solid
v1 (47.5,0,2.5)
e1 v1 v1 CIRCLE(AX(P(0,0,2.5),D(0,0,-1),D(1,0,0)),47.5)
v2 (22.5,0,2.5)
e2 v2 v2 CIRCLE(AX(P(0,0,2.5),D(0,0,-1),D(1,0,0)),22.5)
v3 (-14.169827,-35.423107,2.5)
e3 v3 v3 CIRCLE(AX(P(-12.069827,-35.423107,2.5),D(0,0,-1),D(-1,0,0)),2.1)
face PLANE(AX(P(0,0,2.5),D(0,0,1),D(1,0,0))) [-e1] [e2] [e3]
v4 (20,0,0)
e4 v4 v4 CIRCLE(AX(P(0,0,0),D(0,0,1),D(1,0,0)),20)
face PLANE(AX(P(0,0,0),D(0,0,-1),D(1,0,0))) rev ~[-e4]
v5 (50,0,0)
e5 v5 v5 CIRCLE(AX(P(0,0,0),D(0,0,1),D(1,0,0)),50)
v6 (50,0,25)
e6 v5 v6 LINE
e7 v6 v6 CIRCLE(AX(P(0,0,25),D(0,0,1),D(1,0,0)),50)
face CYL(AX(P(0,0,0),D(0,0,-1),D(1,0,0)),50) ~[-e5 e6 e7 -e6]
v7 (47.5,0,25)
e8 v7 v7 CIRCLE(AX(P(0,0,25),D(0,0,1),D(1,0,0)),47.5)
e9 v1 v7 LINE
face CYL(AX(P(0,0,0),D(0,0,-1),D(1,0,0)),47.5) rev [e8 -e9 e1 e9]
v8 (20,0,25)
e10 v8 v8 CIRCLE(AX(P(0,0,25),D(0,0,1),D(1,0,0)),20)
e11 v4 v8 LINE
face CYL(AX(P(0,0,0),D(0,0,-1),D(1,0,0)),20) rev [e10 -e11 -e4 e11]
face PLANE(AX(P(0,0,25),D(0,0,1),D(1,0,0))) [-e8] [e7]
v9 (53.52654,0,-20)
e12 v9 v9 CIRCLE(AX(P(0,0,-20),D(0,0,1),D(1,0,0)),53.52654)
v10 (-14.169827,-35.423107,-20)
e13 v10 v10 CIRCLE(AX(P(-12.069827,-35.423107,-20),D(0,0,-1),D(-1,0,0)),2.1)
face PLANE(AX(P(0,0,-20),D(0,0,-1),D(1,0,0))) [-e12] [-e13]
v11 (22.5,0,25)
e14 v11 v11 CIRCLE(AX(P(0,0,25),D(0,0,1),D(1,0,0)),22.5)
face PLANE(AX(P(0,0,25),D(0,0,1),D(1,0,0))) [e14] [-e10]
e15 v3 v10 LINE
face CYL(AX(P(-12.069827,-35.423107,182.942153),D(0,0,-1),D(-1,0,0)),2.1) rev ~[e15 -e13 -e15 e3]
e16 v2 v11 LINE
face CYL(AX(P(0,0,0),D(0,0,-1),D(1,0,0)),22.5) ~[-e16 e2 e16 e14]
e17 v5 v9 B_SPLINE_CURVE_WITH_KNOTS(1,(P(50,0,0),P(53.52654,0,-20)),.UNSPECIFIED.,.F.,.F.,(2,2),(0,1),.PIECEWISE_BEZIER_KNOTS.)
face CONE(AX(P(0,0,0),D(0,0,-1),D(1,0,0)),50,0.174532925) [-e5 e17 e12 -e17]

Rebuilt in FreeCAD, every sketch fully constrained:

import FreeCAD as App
import Part
import Sketcher


def faces_at(feature, points):
    """Names of the faces that lie closest to the given points."""
    faces = feature.Shape.Faces
    near = lambda p: min(range(len(faces)), key=lambda i: faces[i].distToShape(Part.Vertex(*p))[0])
    return sorted({f"Face{near(p) + 1}" for p in points})

doc = App.newDocument("Part")
params = doc.addObject("Spreadsheet::Sheet", "Params")
for row, (alias, value) in enumerate([
    ("sketch1_diameter", "100 mm"),
    ("sketch1_diameter2", "40 mm"),
    ("pad1_length", "25 mm"),
    ("thickness_wall", "2.5 mm"),
    ("sketch2_diameter", "100 mm"),
    ("pad2_length", "20 mm"),
    ("pad2_taper", "10 deg"),
    ("sketch3_diameter", "4.2 mm"),
    ("hole_diameter", "4.2 mm"),
], start=1):
    params.set(f"A{row}", alias)
    params.set(f"B{row}", "=" + value)
    params.setAlias(f"B{row}", alias)

body = doc.addObject("PartDesign::Body", "Body")

# Sketch on XY plane
sketch1 = body.newObject("Sketcher::SketchObject", "Sketch")
sketch1.AttachmentSupport = (doc.getObject("XY_Plane"), [""])
sketch1.MapMode = "FlatFace"
sketch1.addGeometry([
    Part.Circle(App.Vector(0, 0, 0), App.Vector(0, 0, 1), 50),
    Part.Circle(App.Vector(0, 0, 0), App.Vector(0, 0, 1), 20),
], False)
sketch1.addConstraint([
    Sketcher.Constraint("Coincident", 0, 3, -1, 1),
    Sketcher.Constraint("Coincident", 1, 3, -1, 1),
    Sketcher.Constraint("Diameter", 0, 100.0),
    Sketcher.Constraint("Diameter", 1, 40.0),
])
sketch1.setExpression("Constraints[2]", "Params.sketch1_diameter")
sketch1.setExpression("Constraints[3]", "Params.sketch1_diameter2")
pad1 = body.newObject("PartDesign::Pad", "Pad")
pad1.Profile = sketch1
pad1.setExpression("Length", "Params.pad1_length")
doc.recompute()

thickness = body.newObject("PartDesign::Thickness", "Thickness")
thickness.Base = (pad1, faces_at(pad1, [(-20, -20, 25)]))
thickness.setExpression("Value", "Params.thickness_wall")
thickness.Reversed = True
thickness.Join = "Arc"

# Sketch on XY plane
sketch2 = body.newObject("Sketcher::SketchObject", "Sketch001")
sketch2.AttachmentSupport = (doc.getObject("XY_Plane"), [""])
sketch2.MapMode = "FlatFace"
sketch2.addGeometry(Part.Circle(App.Vector(0, 0, 0), App.Vector(0, 0, 1), 50), False)
sketch2.addConstraint([
    Sketcher.Constraint("Coincident", 0, 3, -1, 1),
    Sketcher.Constraint("Diameter", 0, 100.0),
])
sketch2.setExpression("Constraints[1]", "Params.sketch2_diameter")
pad2 = body.newObject("PartDesign::Pad", "Pad001")
pad2.Profile = sketch2
pad2.setExpression("Length", "Params.pad2_length")
pad2.Reversed = True
pad2.setExpression("TaperAngle", "Params.pad2_taper")

# Sketch on XY plane
sketch3 = body.newObject("Sketcher::SketchObject", "Sketch002")
sketch3.AttachmentSupport = (doc.getObject("XY_Plane"), [""])
sketch3.MapMode = "FlatFace"
sketch3.AttachmentOffset = App.Placement(App.Vector(0, 0, 25), App.Rotation())
sketch3.addGeometry(Part.Circle(App.Vector(-12.1, -35.4, 0), App.Vector(0, 0, 1), 2.1), False)
sketch3.addConstraint([
    Sketcher.Constraint("Diameter", 0, 4.2),
    Sketcher.Constraint("DistanceX", 0, 3, -1, 1, 12.069827),
    Sketcher.Constraint("DistanceY", 0, 3, -1, 1, 35.423107),
])
sketch3.setExpression("Constraints[0]", "Params.sketch3_diameter")
doc.recompute()
hole = body.newObject("PartDesign::Hole", "Hole")
hole.Profile = sketch3
hole.ThreadType = "None"
hole.setExpression("Diameter", "Params.hole_diameter")
hole.DepthType = "ThroughAll"

doc.recompute()
